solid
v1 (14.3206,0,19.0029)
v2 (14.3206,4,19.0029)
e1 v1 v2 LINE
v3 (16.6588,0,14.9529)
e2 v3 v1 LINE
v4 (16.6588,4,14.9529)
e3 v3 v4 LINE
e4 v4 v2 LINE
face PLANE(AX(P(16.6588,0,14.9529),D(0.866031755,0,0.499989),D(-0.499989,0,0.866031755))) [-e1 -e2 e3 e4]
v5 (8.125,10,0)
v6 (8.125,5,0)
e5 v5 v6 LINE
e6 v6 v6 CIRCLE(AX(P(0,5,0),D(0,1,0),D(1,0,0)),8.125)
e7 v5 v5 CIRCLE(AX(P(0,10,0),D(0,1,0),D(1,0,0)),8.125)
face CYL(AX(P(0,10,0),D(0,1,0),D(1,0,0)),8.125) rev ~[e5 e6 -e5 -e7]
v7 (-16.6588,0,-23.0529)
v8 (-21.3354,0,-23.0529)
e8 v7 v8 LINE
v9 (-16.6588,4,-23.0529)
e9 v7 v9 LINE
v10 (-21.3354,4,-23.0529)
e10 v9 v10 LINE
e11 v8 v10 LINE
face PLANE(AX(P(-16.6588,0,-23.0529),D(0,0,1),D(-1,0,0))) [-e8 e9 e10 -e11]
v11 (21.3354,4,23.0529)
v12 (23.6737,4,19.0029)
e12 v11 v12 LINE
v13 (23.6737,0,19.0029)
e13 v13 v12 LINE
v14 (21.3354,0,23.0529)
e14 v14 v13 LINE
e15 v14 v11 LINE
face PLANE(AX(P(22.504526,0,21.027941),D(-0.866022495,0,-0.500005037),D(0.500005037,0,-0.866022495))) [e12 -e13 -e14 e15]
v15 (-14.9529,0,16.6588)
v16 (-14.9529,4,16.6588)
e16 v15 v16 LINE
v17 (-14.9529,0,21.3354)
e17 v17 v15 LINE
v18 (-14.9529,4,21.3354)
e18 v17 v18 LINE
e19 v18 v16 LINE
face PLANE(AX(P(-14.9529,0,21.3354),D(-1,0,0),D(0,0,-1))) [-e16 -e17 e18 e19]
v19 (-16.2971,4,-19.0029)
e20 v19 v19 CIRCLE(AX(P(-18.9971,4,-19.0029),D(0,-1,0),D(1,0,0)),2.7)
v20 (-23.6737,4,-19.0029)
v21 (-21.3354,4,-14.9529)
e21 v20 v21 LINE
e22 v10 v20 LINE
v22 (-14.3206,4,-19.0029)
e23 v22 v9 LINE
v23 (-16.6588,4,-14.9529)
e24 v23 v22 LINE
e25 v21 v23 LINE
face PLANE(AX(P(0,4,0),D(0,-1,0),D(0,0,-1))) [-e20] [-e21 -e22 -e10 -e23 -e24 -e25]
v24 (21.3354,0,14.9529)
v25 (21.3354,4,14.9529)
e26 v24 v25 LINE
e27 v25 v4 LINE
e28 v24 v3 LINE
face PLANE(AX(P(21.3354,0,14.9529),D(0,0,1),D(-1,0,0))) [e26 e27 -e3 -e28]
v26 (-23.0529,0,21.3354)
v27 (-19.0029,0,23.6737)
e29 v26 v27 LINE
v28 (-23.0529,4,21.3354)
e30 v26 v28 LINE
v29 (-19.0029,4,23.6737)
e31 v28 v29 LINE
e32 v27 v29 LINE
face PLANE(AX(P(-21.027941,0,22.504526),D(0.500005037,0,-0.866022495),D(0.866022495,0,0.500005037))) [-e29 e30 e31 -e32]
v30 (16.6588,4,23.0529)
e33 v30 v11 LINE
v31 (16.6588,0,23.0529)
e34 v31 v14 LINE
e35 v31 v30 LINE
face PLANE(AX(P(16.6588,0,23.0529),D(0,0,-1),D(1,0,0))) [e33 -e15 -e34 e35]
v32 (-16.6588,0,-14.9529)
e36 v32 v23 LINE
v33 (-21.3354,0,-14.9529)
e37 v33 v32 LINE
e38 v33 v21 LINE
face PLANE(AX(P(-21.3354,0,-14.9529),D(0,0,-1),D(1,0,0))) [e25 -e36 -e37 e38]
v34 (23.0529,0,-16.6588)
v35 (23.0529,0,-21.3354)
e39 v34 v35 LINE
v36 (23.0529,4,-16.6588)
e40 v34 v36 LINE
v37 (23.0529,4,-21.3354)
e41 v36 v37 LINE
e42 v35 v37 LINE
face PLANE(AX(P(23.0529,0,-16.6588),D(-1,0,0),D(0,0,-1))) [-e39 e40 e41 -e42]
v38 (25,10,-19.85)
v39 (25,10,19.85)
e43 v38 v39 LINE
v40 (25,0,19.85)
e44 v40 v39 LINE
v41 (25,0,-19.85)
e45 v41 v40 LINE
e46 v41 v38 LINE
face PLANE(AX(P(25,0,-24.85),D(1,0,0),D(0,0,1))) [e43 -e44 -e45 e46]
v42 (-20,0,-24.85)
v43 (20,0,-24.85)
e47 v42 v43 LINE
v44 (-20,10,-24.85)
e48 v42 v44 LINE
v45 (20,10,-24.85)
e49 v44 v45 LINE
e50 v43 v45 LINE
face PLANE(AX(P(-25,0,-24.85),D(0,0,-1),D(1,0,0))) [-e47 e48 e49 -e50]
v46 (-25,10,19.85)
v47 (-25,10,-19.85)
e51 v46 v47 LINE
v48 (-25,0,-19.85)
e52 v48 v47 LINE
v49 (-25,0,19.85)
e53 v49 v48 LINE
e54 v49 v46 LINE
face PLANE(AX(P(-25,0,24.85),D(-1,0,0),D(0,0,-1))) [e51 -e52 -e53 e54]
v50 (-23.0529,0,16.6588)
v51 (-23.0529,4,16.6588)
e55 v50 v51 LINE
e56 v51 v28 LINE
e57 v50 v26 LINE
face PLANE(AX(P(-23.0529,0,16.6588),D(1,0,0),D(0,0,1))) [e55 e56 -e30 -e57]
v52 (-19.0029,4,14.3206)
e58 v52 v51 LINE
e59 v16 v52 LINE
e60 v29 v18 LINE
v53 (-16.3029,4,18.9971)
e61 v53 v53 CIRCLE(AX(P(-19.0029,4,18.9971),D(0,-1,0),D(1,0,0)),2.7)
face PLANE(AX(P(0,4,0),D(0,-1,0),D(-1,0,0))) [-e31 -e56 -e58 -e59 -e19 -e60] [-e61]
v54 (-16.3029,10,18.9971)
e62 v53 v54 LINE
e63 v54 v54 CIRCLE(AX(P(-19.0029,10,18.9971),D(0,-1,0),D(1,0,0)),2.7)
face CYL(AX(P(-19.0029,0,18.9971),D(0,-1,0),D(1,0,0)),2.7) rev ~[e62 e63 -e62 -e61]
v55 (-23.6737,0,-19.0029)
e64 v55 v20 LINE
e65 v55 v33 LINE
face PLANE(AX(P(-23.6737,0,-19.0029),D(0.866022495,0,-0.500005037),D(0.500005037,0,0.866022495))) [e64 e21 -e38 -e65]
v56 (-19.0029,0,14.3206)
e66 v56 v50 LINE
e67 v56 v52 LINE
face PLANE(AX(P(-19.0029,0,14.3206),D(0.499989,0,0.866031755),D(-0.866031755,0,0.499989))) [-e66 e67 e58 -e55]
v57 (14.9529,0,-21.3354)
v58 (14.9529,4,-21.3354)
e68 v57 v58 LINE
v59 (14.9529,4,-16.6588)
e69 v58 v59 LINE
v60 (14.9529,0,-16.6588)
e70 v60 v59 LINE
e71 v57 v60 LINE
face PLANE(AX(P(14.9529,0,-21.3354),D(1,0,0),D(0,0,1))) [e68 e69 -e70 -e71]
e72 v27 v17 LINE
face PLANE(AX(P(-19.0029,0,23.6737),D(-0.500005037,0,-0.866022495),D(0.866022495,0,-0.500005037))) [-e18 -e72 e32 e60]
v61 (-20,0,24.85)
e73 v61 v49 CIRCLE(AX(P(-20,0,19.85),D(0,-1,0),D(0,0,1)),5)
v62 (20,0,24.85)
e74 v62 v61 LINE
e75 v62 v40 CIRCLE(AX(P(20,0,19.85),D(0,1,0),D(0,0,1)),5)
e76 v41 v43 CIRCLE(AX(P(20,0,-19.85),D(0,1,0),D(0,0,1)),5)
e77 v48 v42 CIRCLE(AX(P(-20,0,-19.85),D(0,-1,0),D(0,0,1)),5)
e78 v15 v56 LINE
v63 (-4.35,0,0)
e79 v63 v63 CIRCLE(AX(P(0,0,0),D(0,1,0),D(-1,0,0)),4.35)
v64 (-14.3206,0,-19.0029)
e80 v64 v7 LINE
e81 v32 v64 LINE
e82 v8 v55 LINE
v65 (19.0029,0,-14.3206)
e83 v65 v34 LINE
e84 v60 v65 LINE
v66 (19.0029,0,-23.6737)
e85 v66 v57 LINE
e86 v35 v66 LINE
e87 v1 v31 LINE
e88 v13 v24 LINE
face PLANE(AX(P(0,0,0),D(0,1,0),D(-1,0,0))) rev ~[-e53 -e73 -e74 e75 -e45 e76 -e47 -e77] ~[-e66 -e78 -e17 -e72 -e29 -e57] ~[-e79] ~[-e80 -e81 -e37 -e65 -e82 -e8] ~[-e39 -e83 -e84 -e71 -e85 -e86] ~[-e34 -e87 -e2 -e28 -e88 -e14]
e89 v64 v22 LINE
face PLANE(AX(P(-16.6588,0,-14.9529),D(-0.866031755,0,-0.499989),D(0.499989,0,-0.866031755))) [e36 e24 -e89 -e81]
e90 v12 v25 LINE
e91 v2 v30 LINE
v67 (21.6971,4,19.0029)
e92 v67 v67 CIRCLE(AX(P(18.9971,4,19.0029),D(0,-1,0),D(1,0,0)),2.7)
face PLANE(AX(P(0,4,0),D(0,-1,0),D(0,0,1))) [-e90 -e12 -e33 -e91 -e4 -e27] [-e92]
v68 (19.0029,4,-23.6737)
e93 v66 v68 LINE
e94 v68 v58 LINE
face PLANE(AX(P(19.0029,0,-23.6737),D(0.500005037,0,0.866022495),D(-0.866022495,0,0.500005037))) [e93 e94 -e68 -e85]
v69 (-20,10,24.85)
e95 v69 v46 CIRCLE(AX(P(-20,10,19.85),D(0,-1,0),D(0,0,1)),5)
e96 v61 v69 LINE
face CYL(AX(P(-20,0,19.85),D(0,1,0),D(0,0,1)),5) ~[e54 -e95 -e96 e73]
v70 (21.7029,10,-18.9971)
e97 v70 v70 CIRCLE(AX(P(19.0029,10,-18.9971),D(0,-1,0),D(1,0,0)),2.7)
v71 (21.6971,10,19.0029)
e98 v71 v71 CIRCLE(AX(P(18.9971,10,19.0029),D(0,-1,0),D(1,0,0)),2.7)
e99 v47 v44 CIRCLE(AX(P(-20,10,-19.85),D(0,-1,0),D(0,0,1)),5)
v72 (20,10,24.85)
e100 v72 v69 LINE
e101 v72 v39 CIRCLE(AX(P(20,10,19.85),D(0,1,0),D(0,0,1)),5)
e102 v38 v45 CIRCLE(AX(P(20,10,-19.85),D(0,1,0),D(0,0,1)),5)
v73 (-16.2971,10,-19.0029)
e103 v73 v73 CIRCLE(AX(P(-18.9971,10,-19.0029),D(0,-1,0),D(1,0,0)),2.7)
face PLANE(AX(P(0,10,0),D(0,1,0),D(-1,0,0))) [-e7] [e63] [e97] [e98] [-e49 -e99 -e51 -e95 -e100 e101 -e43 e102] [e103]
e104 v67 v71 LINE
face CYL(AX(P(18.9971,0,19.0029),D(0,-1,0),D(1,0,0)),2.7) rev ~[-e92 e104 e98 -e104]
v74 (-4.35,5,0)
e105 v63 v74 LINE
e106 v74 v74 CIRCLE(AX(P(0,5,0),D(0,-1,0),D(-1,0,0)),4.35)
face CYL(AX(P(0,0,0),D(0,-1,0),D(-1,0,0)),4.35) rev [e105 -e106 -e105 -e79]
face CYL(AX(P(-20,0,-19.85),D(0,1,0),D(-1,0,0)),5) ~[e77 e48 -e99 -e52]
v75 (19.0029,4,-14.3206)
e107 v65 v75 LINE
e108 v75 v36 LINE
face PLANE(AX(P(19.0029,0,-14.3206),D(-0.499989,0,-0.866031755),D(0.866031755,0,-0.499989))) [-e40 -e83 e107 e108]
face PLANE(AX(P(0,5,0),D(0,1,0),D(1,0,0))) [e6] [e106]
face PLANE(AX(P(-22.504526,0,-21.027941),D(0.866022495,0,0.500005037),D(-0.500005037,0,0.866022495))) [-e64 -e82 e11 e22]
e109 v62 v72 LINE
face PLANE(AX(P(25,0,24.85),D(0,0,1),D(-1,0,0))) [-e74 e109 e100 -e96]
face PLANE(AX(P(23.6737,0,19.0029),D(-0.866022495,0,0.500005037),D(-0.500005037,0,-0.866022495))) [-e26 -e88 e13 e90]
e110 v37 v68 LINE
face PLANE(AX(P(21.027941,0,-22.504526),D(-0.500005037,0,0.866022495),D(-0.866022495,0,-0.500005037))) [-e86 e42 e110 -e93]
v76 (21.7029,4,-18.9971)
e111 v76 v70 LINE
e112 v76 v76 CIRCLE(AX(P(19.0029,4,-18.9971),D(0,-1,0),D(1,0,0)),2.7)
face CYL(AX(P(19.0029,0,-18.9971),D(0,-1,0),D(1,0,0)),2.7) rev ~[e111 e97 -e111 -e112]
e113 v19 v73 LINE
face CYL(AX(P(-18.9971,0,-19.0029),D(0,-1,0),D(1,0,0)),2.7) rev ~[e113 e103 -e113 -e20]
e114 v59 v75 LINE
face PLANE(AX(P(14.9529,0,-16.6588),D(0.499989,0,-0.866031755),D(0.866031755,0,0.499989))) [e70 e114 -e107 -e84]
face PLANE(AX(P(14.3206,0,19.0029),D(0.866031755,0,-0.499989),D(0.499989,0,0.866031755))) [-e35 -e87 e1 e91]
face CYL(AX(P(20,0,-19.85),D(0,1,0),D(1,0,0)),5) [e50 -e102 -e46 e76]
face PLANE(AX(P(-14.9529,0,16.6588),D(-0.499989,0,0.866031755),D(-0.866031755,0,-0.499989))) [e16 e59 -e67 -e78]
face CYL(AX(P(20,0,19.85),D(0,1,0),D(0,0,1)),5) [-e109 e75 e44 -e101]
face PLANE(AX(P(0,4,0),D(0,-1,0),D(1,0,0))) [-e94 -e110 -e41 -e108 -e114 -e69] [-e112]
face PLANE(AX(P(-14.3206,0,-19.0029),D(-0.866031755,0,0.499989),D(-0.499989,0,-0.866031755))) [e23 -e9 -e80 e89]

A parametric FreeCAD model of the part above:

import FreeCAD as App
import Part
import Sketcher
from FreeCAD import Vector
Q = App.Units.Quantity


def edges_at(feature, points):
    """Names of the edges that pass closest to the given points."""
    edges = feature.Shape.Edges
    near = lambda p: min(range(len(edges)), key=lambda i: edges[i].distToShape(Part.Vertex(*p))[0])
    return sorted({f"Edge{near(p) + 1}" for p in points})


def add_polygon(sketch, points):
    """Adds a closed chain of lines whose ends are joined by coincident constraints."""
    first, n = sketch.GeometryCount, len(points)
    for a, b in zip(points, points[1:] + points[:1]):
        sketch.addGeometry(Part.LineSegment(App.Vector(*a, 0), App.Vector(*b, 0)), False)
    for i in range(n):
        sketch.addConstraint(Sketcher.Constraint("Coincident", first + i, 2, first + (i + 1) % n, 1))

doc = App.newDocument("Part")
body = doc.addObject("PartDesign::Body", "Body")

# Sketch on XZ plane
sketch1 = doc.addObject("Sketcher::SketchObject", "Sketch")
body.addObject(sketch1)
sketch1.AttachmentSupport = (doc.XZ_Plane, [""])
sketch1.MapMode = "FlatFace"
add_polygon(sketch1, [(-25, 24.9), (25, 24.9), (25, -24.9), (-25, -24.9)])  # lines 0-3
sketch1.addGeometry(Part.Circle(Vector(0, 0, 0), Vector(0, 0, 1), 4.3), False)  # 4
sketch1.addConstraint([
    Sketcher.Constraint("Horizontal", 0),
    Sketcher.Constraint("Vertical", 1),
    Sketcher.Constraint("Horizontal", 2),
    Sketcher.Constraint("Vertical", 3),
    Sketcher.Constraint("Coincident", 4, 3, -1, 1),
    Sketcher.Constraint("Symmetric", 0, 2, 2, 2, -1, 1),
    Sketcher.Constraint("Diameter", 4, 8.7),
    Sketcher.Constraint("DistanceX", 0, 1, 0, 2, 50.0),
    Sketcher.Constraint("DistanceY", 1, 2, 1, 1, 49.7),
])
pad1 = doc.addObject("PartDesign::Pad", "Pad")
body.addObject(pad1)
pad1.Profile = sketch1
pad1.Length = 10
pad1.Reversed = True

# Sketch on XZ plane
sketch2 = doc.addObject("Sketcher::SketchObject", "Sketch001")
body.addObject(sketch2)
sketch2.AttachmentSupport = (doc.XZ_Plane, [""])
sketch2.MapMode = "FlatFace"
sketch2.AttachmentOffset = App.Placement(Vector(0, 0, -10), App.Rotation())
sketch2.addGeometry(Part.Circle(Vector(0, 0, 0), Vector(0, 0, 1), 8), False)
sketch2.addConstraint([
    Sketcher.Constraint("Coincident", 0, 3, -1, 1),
    Sketcher.Constraint("Diameter", 0, 16.25),
])
pocket1 = doc.addObject("PartDesign::Pocket", "Pocket")
body.addObject(pocket1)
pocket1.Profile = sketch2
pocket1.Length = 5
pocket1.Reversed = True

# Sketch on XZ plane
sketch3 = doc.addObject("Sketcher::SketchObject", "Sketch002")
body.addObject(sketch3)
sketch3.AttachmentSupport = (doc.XZ_Plane, [""])
sketch3.MapMode = "FlatFace"
sketch3.addGeometry([
    Part.Circle(Vector(-19, -19, 0), Vector(0, 0, 1), 2.7),
    Part.Circle(Vector(-19, 19, 0), Vector(0, 0, 1), 2.7),
    Part.Circle(Vector(19, -19, 0), Vector(0, 0, 1), 2.7),
    Part.Circle(Vector(19, 19, 0), Vector(0, 0, 1), 2.7),
], False)
sketch3.addConstraint([
    Sketcher.Constraint("Equal", 0, 1),
    Sketcher.Constraint("Equal", 1, 2),
    Sketcher.Constraint("Equal", 2, 3),
    Sketcher.Constraint("Symmetric", 1, 3, 2, 3, -1, 1),
    Sketcher.Constraint("Symmetric", 0, 3, 3, 3, -1, 1),
    Sketcher.Constraint("Diameter", 0, 5.4),
    Sketcher.Constraint("DistanceY", 0, 3, 1, 3, 38.0),
    Sketcher.Constraint("DistanceX", 0, 3, 2, 3, 38.0),
    Sketcher.Constraint("DistanceX", 0, 3, -1, 1, 18.997),
    Sketcher.Constraint("DistanceY", 0, 3, -1, 1, 19.003),
])
pocket2 = doc.addObject("PartDesign::Pocket", "Pocket001")
body.addObject(pocket2)
pocket2.Profile = sketch3
pocket2.Type = "ThroughAll"
doc.recompute()

fillet = doc.addObject("PartDesign::Fillet", "Fillet")
body.addObject(fillet)
fillet.Base = (pocket2, edges_at(pocket2, [
    (-25, 5, 24.85),
    (25, 5, 24.85),
    (25, 5, -24.85),
    (-25, 5, -24.85),
]))
fillet.Radius = 5

# Sketch on XZ plane
sketch4 = doc.addObject("Sketcher::SketchObject", "Sketch003")
body.addObject(sketch4)
sketch4.AttachmentSupport = (doc.XZ_Plane, [""])
sketch4.MapMode = "FlatFace"
add_polygon(sketch4, [(23.1, -21.3), (23.1, -16.7), (19, -14.3), (15, -16.7), (15, -21.3), (19, -23.7)])  # lines 0-5
sketch4.addConstraint([
    Sketcher.Constraint("Vertical", 0),
    Sketcher.Constraint("Vertical", 3),
    Sketcher.Constraint("Parallel", 1, 4),
    Sketcher.Constraint("Parallel", 2, 5),
    Sketcher.Constraint("Horizontal", 0, 2, 2, 2),
    Sketcher.Constraint("Horizontal", 3, 2, 5, 2),
    Sketcher.Constraint("Vertical", 1, 2, 4, 2),
    Sketcher.Constraint("DistanceX", 2, 2, 0, 2, 8.1),
    Sketcher.Constraint("Angle", 1, Q("150.0007 deg")),
    Sketcher.Constraint("DistanceY", 0, 1, 0, 2, 4.6766),
    Sketcher.Constraint("DistanceX", -1, 1, 0, 2, 23.053),
    Sketcher.Constraint("DistanceY", 0, 2, -1, 1, 16.6588),
])
pocket3 = doc.addObject("PartDesign::Pocket", "Pocket002")
body.addObject(pocket3)
pocket3.Profile = sketch4
pocket3.Length = 4
doc.recompute()

polarpattern = doc.addObject("PartDesign::PolarPattern", "PolarPattern")
body.addObject(polarpattern)
polarpattern.Originals = [pocket3]
polarpattern.Axis = (doc.Y_Axis, [""])
polarpattern.Angle = 360
polarpattern.Occurrences = 4
body.Tip = polarpattern

doc.recompute()
